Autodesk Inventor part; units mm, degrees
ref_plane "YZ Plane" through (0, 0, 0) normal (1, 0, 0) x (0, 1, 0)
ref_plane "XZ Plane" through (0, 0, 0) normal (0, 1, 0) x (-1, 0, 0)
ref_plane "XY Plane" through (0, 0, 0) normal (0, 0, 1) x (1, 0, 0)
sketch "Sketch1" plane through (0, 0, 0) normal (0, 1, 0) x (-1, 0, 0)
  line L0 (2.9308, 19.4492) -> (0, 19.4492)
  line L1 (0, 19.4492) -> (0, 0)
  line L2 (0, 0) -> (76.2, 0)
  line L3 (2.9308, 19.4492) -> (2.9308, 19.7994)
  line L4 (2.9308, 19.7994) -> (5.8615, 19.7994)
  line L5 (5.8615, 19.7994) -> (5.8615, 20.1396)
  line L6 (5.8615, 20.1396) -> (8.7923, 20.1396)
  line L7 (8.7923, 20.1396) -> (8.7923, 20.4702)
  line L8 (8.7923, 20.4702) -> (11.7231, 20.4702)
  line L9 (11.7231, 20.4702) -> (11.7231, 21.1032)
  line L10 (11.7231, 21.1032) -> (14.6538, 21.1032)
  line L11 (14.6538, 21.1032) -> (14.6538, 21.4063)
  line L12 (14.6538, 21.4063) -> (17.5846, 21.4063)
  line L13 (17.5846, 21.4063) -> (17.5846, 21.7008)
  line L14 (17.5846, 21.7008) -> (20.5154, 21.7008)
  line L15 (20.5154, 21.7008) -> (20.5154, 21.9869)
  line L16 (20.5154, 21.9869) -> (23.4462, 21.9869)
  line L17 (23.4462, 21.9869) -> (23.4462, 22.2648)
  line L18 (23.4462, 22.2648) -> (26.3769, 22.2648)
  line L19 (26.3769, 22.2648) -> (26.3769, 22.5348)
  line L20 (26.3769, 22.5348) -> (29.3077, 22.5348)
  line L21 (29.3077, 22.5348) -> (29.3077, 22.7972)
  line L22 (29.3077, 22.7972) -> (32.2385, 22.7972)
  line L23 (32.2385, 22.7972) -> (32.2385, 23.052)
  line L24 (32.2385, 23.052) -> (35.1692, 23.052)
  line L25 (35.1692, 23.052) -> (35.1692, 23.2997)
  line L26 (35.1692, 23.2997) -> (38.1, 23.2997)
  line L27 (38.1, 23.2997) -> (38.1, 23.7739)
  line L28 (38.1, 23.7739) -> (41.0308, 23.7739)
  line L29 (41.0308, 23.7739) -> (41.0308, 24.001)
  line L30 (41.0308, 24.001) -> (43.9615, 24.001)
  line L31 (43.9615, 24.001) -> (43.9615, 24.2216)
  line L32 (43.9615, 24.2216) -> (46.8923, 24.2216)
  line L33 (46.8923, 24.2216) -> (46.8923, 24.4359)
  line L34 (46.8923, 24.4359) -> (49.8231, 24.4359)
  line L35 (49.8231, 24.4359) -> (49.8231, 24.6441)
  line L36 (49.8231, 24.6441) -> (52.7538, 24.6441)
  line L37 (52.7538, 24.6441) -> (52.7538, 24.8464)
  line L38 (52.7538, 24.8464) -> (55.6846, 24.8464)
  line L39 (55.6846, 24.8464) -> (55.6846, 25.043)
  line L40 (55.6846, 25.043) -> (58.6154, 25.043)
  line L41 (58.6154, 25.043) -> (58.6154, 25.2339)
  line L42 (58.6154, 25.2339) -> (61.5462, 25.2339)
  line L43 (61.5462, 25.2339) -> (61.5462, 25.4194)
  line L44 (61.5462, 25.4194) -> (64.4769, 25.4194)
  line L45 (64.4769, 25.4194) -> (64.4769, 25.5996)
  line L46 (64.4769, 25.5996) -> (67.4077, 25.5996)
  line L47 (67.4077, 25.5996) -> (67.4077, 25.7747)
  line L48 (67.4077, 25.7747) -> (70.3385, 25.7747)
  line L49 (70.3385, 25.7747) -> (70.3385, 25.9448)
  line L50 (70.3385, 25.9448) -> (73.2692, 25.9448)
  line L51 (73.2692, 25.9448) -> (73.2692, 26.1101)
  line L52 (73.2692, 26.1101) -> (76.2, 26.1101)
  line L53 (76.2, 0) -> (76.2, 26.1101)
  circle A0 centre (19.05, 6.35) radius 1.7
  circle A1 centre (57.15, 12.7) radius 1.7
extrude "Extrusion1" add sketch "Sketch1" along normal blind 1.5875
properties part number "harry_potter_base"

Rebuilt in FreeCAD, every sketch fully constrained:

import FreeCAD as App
import Part
import Sketcher
Q = App.Units.Quantity

doc = App.newDocument("Part")
params = doc.addObject("Spreadsheet::Sheet", "Params")
for row, (alias, value) in enumerate([
    ("sketch1_width", "3 in"),
    ("pad1_length", "0.0625 in"),
], start=1):
    params.set(f"A{row}", alias)
    params.set(f"B{row}", "=" + value)
    params.setAlias(f"B{row}", alias)

body = doc.addObject("PartDesign::Body", "Body")

sketch1 = doc.addObject("Sketcher::SketchObject", "Sketch")
body.addObject(sketch1)
sketch1.AttachmentSupport = (doc.XZ_Plane, [""])
sketch1.MapMode = "FlatFace"
sketch1.addGeometry(Part.LineSegment(App.Vector(-2.9308, 19.7994, 0), App.Vector(-2.9308, 19.4492, 0)), False)
sketch1.addGeometry(Part.LineSegment(App.Vector(-2.9308, 19.4492, 0), App.Vector(0, 19.4492, 0)), False)
sketch1.addGeometry(Part.LineSegment(App.Vector(0, 19.4492, 0), App.Vector(0, 0, 0)), False)
sketch1.addGeometry(Part.LineSegment(App.Vector(0, 0, 0), App.Vector(-76.2, 0, 0)), False)
sketch1.addGeometry(Part.LineSegment(App.Vector(-76.2, 0, 0), App.Vector(-76.2, 26.1101, 0)), False)
sketch1.addGeometry(Part.LineSegment(App.Vector(-76.2, 26.1101, 0), App.Vector(-73.2692, 26.1101, 0)), False)
sketch1.addGeometry(Part.LineSegment(App.Vector(-73.2692, 26.1101, 0), App.Vector(-73.2692, 25.9448, 0)), False)
sketch1.addGeometry(Part.LineSegment(App.Vector(-73.2692, 25.9448, 0), App.Vector(-70.3385, 25.9448, 0)), False)
sketch1.addGeometry(Part.LineSegment(App.Vector(-70.3385, 25.9448, 0), App.Vector(-70.3385, 25.7747, 0)), False)
sketch1.addGeometry(Part.LineSegment(App.Vector(-70.3385, 25.7747, 0), App.Vector(-67.4077, 25.7747, 0)), False)
sketch1.addGeometry(Part.LineSegment(App.Vector(-67.4077, 25.7747, 0), App.Vector(-67.4077, 25.5996, 0)), False)
sketch1.addGeometry(Part.LineSegment(App.Vector(-67.4077, 25.5996, 0), App.Vector(-64.4769, 25.5996, 0)), False)
sketch1.addGeometry(Part.LineSegment(App.Vector(-64.4769, 25.5996, 0), App.Vector(-64.4769, 25.4194, 0)), False)
sketch1.addGeometry(Part.LineSegment(App.Vector(-64.4769, 25.4194, 0), App.Vector(-61.5462, 25.4194, 0)), False)
sketch1.addGeometry(Part.LineSegment(App.Vector(-61.5462, 25.4194, 0), App.Vector(-61.5462, 25.2339, 0)), False)
sketch1.addGeometry(Part.LineSegment(App.Vector(-61.5462, 25.2339, 0), App.Vector(-58.6154, 25.2339, 0)), False)
sketch1.addGeometry(Part.LineSegment(App.Vector(-58.6154, 25.2339, 0), App.Vector(-58.6154, 25.043, 0)), False)
sketch1.addGeometry(Part.LineSegment(App.Vector(-58.6154, 25.043, 0), App.Vector(-55.6846, 25.043, 0)), False)
sketch1.addGeometry(Part.LineSegment(App.Vector(-55.6846, 25.043, 0), App.Vector(-55.6846, 24.8464, 0)), False)
sketch1.addGeometry(Part.LineSegment(App.Vector(-55.6846, 24.8464, 0), App.Vector(-52.7538, 24.8464, 0)), False)
sketch1.addGeometry(Part.LineSegment(App.Vector(-52.7538, 24.8464, 0), App.Vector(-52.7538, 24.6441, 0)), False)
sketch1.addGeometry(Part.LineSegment(App.Vector(-52.7538, 24.6441, 0), App.Vector(-49.8231, 24.6441, 0)), False)
sketch1.addGeometry(Part.LineSegment(App.Vector(-49.8231, 24.6441, 0), App.Vector(-49.8231, 24.4359, 0)), False)
sketch1.addGeometry(Part.LineSegment(App.Vector(-49.8231, 24.4359, 0), App.Vector(-46.8923, 24.4359, 0)), False)
sketch1.addGeometry(Part.LineSegment(App.Vector(-46.8923, 24.4359, 0), App.Vector(-46.8923, 24.2216, 0)), False)
sketch1.addGeometry(Part.LineSegment(App.Vector(-46.8923, 24.2216, 0), App.Vector(-43.9615, 24.2216, 0)), False)
sketch1.addGeometry(Part.LineSegment(App.Vector(-43.9615, 24.2216, 0), App.Vector(-43.9615, 24.001, 0)), False)
sketch1.addGeometry(Part.LineSegment(App.Vector(-43.9615, 24.001, 0), App.Vector(-41.0308, 24.001, 0)), False)
sketch1.addGeometry(Part.LineSegment(App.Vector(-41.0308, 24.001, 0), App.Vector(-41.0308, 23.7739, 0)), False)
sketch1.addGeometry(Part.LineSegment(App.Vector(-41.0308, 23.7739, 0), App.Vector(-38.1, 23.7739, 0)), False)
sketch1.addGeometry(Part.LineSegment(App.Vector(-38.1, 23.7739, 0), App.Vector(-38.1, 23.2997, 0)), False)
sketch1.addGeometry(Part.LineSegment(App.Vector(-38.1, 23.2997, 0), App.Vector(-35.1692, 23.2997, 0)), False)
sketch1.addGeometry(Part.LineSegment(App.Vector(-35.1692, 23.2997, 0), App.Vector(-35.1692, 23.052, 0)), False)
sketch1.addGeometry(Part.LineSegment(App.Vector(-35.1692, 23.052, 0), App.Vector(-32.2385, 23.052, 0)), False)
sketch1.addGeometry(Part.LineSegment(App.Vector(-32.2385, 23.052, 0), App.Vector(-32.2385, 22.7972, 0)), False)
sketch1.addGeometry(Part.LineSegment(App.Vector(-32.2385, 22.7972, 0), App.Vector(-29.3077, 22.7972, 0)), False)
sketch1.addGeometry(Part.LineSegment(App.Vector(-29.3077, 22.7972, 0), App.Vector(-29.3077, 22.5348, 0)), False)
sketch1.addGeometry(Part.LineSegment(App.Vector(-29.3077, 22.5348, 0), App.Vector(-26.3769, 22.5348, 0)), False)
sketch1.addGeometry(Part.LineSegment(App.Vector(-26.3769, 22.5348, 0), App.Vector(-26.3769, 22.2648, 0)), False)
sketch1.addGeometry(Part.LineSegment(App.Vector(-26.3769, 22.2648, 0), App.Vector(-23.4462, 22.2648, 0)), False)
sketch1.addGeometry(Part.LineSegment(App.Vector(-23.4462, 22.2648, 0), App.Vector(-23.4462, 21.9869, 0)), False)
sketch1.addGeometry(Part.LineSegment(App.Vector(-23.4462, 21.9869, 0), App.Vector(-20.5154, 21.9869, 0)), False)
sketch1.addGeometry(Part.LineSegment(App.Vector(-20.5154, 21.9869, 0), App.Vector(-20.5154, 21.7008, 0)), False)
sketch1.addGeometry(Part.LineSegment(App.Vector(-20.5154, 21.7008, 0), App.Vector(-17.5846, 21.7008, 0)), False)
sketch1.addGeometry(Part.LineSegment(App.Vector(-17.5846, 21.7008, 0), App.Vector(-17.5846, 21.4063, 0)), False)
sketch1.addGeometry(Part.LineSegment(App.Vector(-17.5846, 21.4063, 0), App.Vector(-14.6538, 21.4063, 0)), False)
sketch1.addGeometry(Part.LineSegment(App.Vector(-14.6538, 21.4063, 0), App.Vector(-14.6538, 21.1032, 0)), False)
sketch1.addGeometry(Part.LineSegment(App.Vector(-14.6538, 21.1032, 0), App.Vector(-11.7231, 21.1032, 0)), False)
sketch1.addGeometry(Part.LineSegment(App.Vector(-11.7231, 21.1032, 0), App.Vector(-11.7231, 20.4702, 0)), False)
sketch1.addGeometry(Part.LineSegment(App.Vector(-11.7231, 20.4702, 0), App.Vector(-8.7923, 20.4702, 0)), False)
sketch1.addGeometry(Part.LineSegment(App.Vector(-8.7923, 20.4702, 0), App.Vector(-8.7923, 20.1396, 0)), False)
sketch1.addGeometry(Part.LineSegment(App.Vector(-8.7923, 20.1396, 0), App.Vector(-5.8615, 20.1396, 0)), False)
sketch1.addGeometry(Part.LineSegment(App.Vector(-5.8615, 20.1396, 0), App.Vector(-5.8615, 19.7994, 0)), False)
sketch1.addGeometry(Part.LineSegment(App.Vector(-5.8615, 19.7994, 0), App.Vector(-2.9308, 19.7994, 0)), False)
sketch1.addGeometry(Part.Circle(App.Vector(-19.05, 6.35, 0), App.Vector(0, 0, 1), 1.7), False)
sketch1.addGeometry(Part.Circle(App.Vector(-57.15, 12.7, 0), App.Vector(0, 0, 1), 1.7), False)
sketch1.addConstraint(Sketcher.Constraint("Coincident", 0, 2, 1, 1))
sketch1.addConstraint(Sketcher.Constraint("Coincident", 1, 2, 2, 1))
sketch1.addConstraint(Sketcher.Constraint("Coincident", 2, 2, 3, 1))
sketch1.addConstraint(Sketcher.Constraint("Coincident", 3, 2, 4, 1))
sketch1.addConstraint(Sketcher.Constraint("Coincident", 4, 2, 5, 1))
sketch1.addConstraint(Sketcher.Constraint("Coincident", 5, 2, 6, 1))
sketch1.addConstraint(Sketcher.Constraint("Coincident", 6, 2, 7, 1))
sketch1.addConstraint(Sketcher.Constraint("Coincident", 7, 2, 8, 1))
sketch1.addConstraint(Sketcher.Constraint("Coincident", 8, 2, 9, 1))
sketch1.addConstraint(Sketcher.Constraint("Coincident", 9, 2, 10, 1))
sketch1.addConstraint(Sketcher.Constraint("Coincident", 10, 2, 11, 1))
sketch1.addConstraint(Sketcher.Constraint("Coincident", 11, 2, 12, 1))
sketch1.addConstraint(Sketcher.Constraint("Coincident", 12, 2, 13, 1))
sketch1.addConstraint(Sketcher.Constraint("Coincident", 13, 2, 14, 1))
sketch1.addConstraint(Sketcher.Constraint("Coincident", 14, 2, 15, 1))
sketch1.addConstraint(Sketcher.Constraint("Coincident", 15, 2, 16, 1))
sketch1.addConstraint(Sketcher.Constraint("Coincident", 16, 2, 17, 1))
sketch1.addConstraint(Sketcher.Constraint("Coincident", 17, 2, 18, 1))
sketch1.addConstraint(Sketcher.Constraint("Coincident", 18, 2, 19, 1))
sketch1.addConstraint(Sketcher.Constraint("Coincident", 19, 2, 20, 1))
sketch1.addConstraint(Sketcher.Constraint("Coincident", 20, 2, 21, 1))
sketch1.addConstraint(Sketcher.Constraint("Coincident", 21, 2, 22, 1))
sketch1.addConstraint(Sketcher.Constraint("Coincident", 22, 2, 23, 1))
sketch1.addConstraint(Sketcher.Constraint("Coincident", 23, 2, 24, 1))
sketch1.addConstraint(Sketcher.Constraint("Coincident", 24, 2, 25, 1))
sketch1.addConstraint(Sketcher.Constraint("Coincident", 25, 2, 26, 1))
sketch1.addConstraint(Sketcher.Constraint("Coincident", 26, 2, 27, 1))
sketch1.addConstraint(Sketcher.Constraint("Coincident", 27, 2, 28, 1))
sketch1.addConstraint(Sketcher.Constraint("Coincident", 28, 2, 29, 1))
sketch1.addConstraint(Sketcher.Constraint("Coincident", 29, 2, 30, 1))
sketch1.addConstraint(Sketcher.Constraint("Coincident", 30, 2, 31, 1))
sketch1.addConstraint(Sketcher.Constraint("Coincident", 31, 2, 32, 1))
sketch1.addConstraint(Sketcher.Constraint("Coincident", 32, 2, 33, 1))
sketch1.addConstraint(Sketcher.Constraint("Coincident", 33, 2, 34, 1))
sketch1.addConstraint(Sketcher.Constraint("Coincident", 34, 2, 35, 1))
sketch1.addConstraint(Sketcher.Constraint("Coincident", 35, 2, 36, 1))
sketch1.addConstraint(Sketcher.Constraint("Coincident", 36, 2, 37, 1))
sketch1.addConstraint(Sketcher.Constraint("Coincident", 37, 2, 38, 1))
sketch1.addConstraint(Sketcher.Constraint("Coincident", 38, 2, 39, 1))
sketch1.addConstraint(Sketcher.Constraint("Coincident", 39, 2, 40, 1))
sketch1.addConstraint(Sketcher.Constraint("Coincident", 40, 2, 41, 1))
sketch1.addConstraint(Sketcher.Constraint("Coincident", 41, 2, 42, 1))
sketch1.addConstraint(Sketcher.Constraint("Coincident", 42, 2, 43, 1))
sketch1.addConstraint(Sketcher.Constraint("Coincident", 43, 2, 44, 1))
sketch1.addConstraint(Sketcher.Constraint("Coincident", 44, 2, 45, 1))
sketch1.addConstraint(Sketcher.Constraint("Coincident", 45, 2, 46, 1))
sketch1.addConstraint(Sketcher.Constraint("Coincident", 46, 2, 47, 1))
sketch1.addConstraint(Sketcher.Constraint("Coincident", 47, 2, 48, 1))
sketch1.addConstraint(Sketcher.Constraint("Coincident", 48, 2, 49, 1))
sketch1.addConstraint(Sketcher.Constraint("Coincident", 49, 2, 50, 1))
sketch1.addConstraint(Sketcher.Constraint("Coincident", 50, 2, 51, 1))
sketch1.addConstraint(Sketcher.Constraint("Coincident", 51, 2, 52, 1))
sketch1.addConstraint(Sketcher.Constraint("Coincident", 52, 2, 53, 1))
sketch1.addConstraint(Sketcher.Constraint("Coincident", 53, 2, 0, 1))
sketch1.addConstraint(Sketcher.Constraint("Vertical", 0))
sketch1.addConstraint(Sketcher.Constraint("Horizontal", 1))
sketch1.addConstraint(Sketcher.Constraint("Vertical", 2))
sketch1.addConstraint(Sketcher.Constraint("Horizontal", 3))
sketch1.addConstraint(Sketcher.Constraint("Vertical", 4))
sketch1.addConstraint(Sketcher.Constraint("Horizontal", 5))
sketch1.addConstraint(Sketcher.Constraint("Vertical", 6))
sketch1.addConstraint(Sketcher.Constraint("Horizontal", 7))
sketch1.addConstraint(Sketcher.Constraint("Vertical", 8))
sketch1.addConstraint(Sketcher.Constraint("Horizontal", 9))
sketch1.addConstraint(Sketcher.Constraint("Vertical", 10))
sketch1.addConstraint(Sketcher.Constraint("Horizontal", 11))
sketch1.addConstraint(Sketcher.Constraint("Vertical", 12))
sketch1.addConstraint(Sketcher.Constraint("Horizontal", 13))
sketch1.addConstraint(Sketcher.Constraint("Vertical", 14))
sketch1.addConstraint(Sketcher.Constraint("Horizontal", 15))
sketch1.addConstraint(Sketcher.Constraint("Vertical", 16))
sketch1.addConstraint(Sketcher.Constraint("Horizontal", 17))
sketch1.addConstraint(Sketcher.Constraint("Vertical", 18))
sketch1.addConstraint(Sketcher.Constraint("Horizontal", 19))
sketch1.addConstraint(Sketcher.Constraint("Vertical", 20))
sketch1.addConstraint(Sketcher.Constraint("Horizontal", 21))
sketch1.addConstraint(Sketcher.Constraint("Vertical", 22))
sketch1.addConstraint(Sketcher.Constraint("Horizontal", 23))
sketch1.addConstraint(Sketcher.Constraint("Vertical", 24))
sketch1.addConstraint(Sketcher.Constraint("Horizontal", 25))
sketch1.addConstraint(Sketcher.Constraint("Vertical", 26))
sketch1.addConstraint(Sketcher.Constraint("Horizontal", 27))
sketch1.addConstraint(Sketcher.Constraint("Vertical", 28))
sketch1.addConstraint(Sketcher.Constraint("Horizontal", 29))
sketch1.addConstraint(Sketcher.Constraint("Vertical", 30))
sketch1.addConstraint(Sketcher.Constraint("Horizontal", 31))
sketch1.addConstraint(Sketcher.Constraint("Vertical", 32))
sketch1.addConstraint(Sketcher.Constraint("Horizontal", 33))
sketch1.addConstraint(Sketcher.Constraint("Vertical", 34))
sketch1.addConstraint(Sketcher.Constraint("Horizontal", 35))
sketch1.addConstraint(Sketcher.Constraint("Vertical", 36))
sketch1.addConstraint(Sketcher.Constraint("Horizontal", 37))
sketch1.addConstraint(Sketcher.Constraint("Vertical", 38))
sketch1.addConstraint(Sketcher.Constraint("Horizontal", 39))
sketch1.addConstraint(Sketcher.Constraint("Vertical", 40))
sketch1.addConstraint(Sketcher.Constraint("Horizontal", 41))
sketch1.addConstraint(Sketcher.Constraint("Vertical", 42))
sketch1.addConstraint(Sketcher.Constraint("Horizontal", 43))
sketch1.addConstraint(Sketcher.Constraint("Vertical", 44))
sketch1.addConstraint(Sketcher.Constraint("Horizontal", 45))
sketch1.addConstraint(Sketcher.Constraint("Vertical", 46))
sketch1.addConstraint(Sketcher.Constraint("Horizontal", 47))
sketch1.addConstraint(Sketcher.Constraint("Vertical", 48))
sketch1.addConstraint(Sketcher.Constraint("Horizontal", 49))
sketch1.addConstraint(Sketcher.Constraint("Vertical", 50))
sketch1.addConstraint(Sketcher.Constraint("Horizontal", 51))
sketch1.addConstraint(Sketcher.Constraint("Vertical", 52))
sketch1.addConstraint(Sketcher.Constraint("Horizontal", 53))
sketch1.addConstraint(Sketcher.Constraint("Coincident", 2, 2, -1, 1))
sketch1.addConstraint(Sketcher.Constraint("Equal", 54, 55))
sketch1.addConstraint(Sketcher.Constraint("Equal", 1, 5))
sketch1.addConstraint(Sketcher.Constraint("Equal", 5, 7))
sketch1.addConstraint(Sketcher.Constraint("Equal", 7, 9))
sketch1.addConstraint(Sketcher.Constraint("Equal", 9, 11))
sketch1.addConstraint(Sketcher.Constraint("Equal", 11, 13))
sketch1.addConstraint(Sketcher.Constraint("Equal", 13, 15))
sketch1.addConstraint(Sketcher.Constraint("Equal", 15, 17))
sketch1.addConstraint(Sketcher.Constraint("Equal", 17, 19))
sketch1.addConstraint(Sketcher.Constraint("Equal", 19, 21))
sketch1.addConstraint(Sketcher.Constraint("Equal", 21, 23))
sketch1.addConstraint(Sketcher.Constraint("Equal", 23, 25))
sketch1.addConstraint(Sketcher.Constraint("Equal", 25, 27))
sketch1.addConstraint(Sketcher.Constraint("Equal", 27, 29))
sketch1.addConstraint(Sketcher.Constraint("Equal", 29, 31))
sketch1.addConstraint(Sketcher.Constraint("Equal", 31, 33))
sketch1.addConstraint(Sketcher.Constraint("Equal", 33, 35))
sketch1.addConstraint(Sketcher.Constraint("Equal", 35, 37))
sketch1.addConstraint(Sketcher.Constraint("Equal", 37, 39))
sketch1.addConstraint(Sketcher.Constraint("Equal", 39, 41))
sketch1.addConstraint(Sketcher.Constraint("Equal", 41, 43))
sketch1.addConstraint(Sketcher.Constraint("Equal", 43, 45))
sketch1.addConstraint(Sketcher.Constraint("Equal", 45, 47))
sketch1.addConstraint(Sketcher.Constraint("Equal", 47, 49))
sketch1.addConstraint(Sketcher.Constraint("Equal", 49, 51))
sketch1.addConstraint(Sketcher.Constraint("Equal", 51, 53))
sketch1.addConstraint(Sketcher.Constraint("DistanceX", 3, 2, 3, 1, Q("3 in")))
sketch1.addConstraint(Sketcher.Constraint("DistanceY", -1, 1, 55, 3, Q("0.5 in")))
sketch1.addConstraint(Sketcher.Constraint("DistanceX", 55, 3, 54, 3, Q("1.5 in")))
sketch1.addConstraint(Sketcher.Constraint("Diameter", 54, 3.4))
sketch1.addConstraint(Sketcher.Constraint("DistanceX", 54, 3, -1, 1, Q("0.75 in")))
sketch1.addConstraint(Sketcher.Constraint("DistanceY", -1, 1, 54, 3, Q("0.25 in")))
sketch1.addConstraint(Sketcher.Constraint("DistanceY", 6, 2, 6, 1, Q("0.0065 in")))
sketch1.addConstraint(Sketcher.Constraint("DistanceY", 8, 2, 8, 1, Q("0.0067 in")))
sketch1.addConstraint(Sketcher.Constraint("DistanceY", 10, 2, 10, 1, Q("0.0069 in")))
sketch1.addConstraint(Sketcher.Constraint("DistanceY", 12, 2, 12, 1, Q("0.0071 in")))
sketch1.addConstraint(Sketcher.Constraint("DistanceY", 14, 2, 14, 1, Q("0.0073 in")))
sketch1.addConstraint(Sketcher.Constraint("DistanceY", 22, 2, 22, 1, Q("0.0082 in")))
sketch1.addConstraint(Sketcher.Constraint("DistanceY", 44, 2, 44, 1, Q("0.0116 in")))
sketch1.addConstraint(Sketcher.Constraint("DistanceY", 52, 2, 52, 1, Q("0.0134 in")))
sketch1.addConstraint(Sketcher.Constraint("DistanceY", 38, 2, 33, 2, Q("0.031 in")))
sketch1.addConstraint(Sketcher.Constraint("DistanceY", 0, 2, 0, 1, 0.3502))
sketch1.addConstraint(Sketcher.Constraint("DistanceY", 2, 2, 2, 1, 19.4492))
sketch1.addConstraint(Sketcher.Constraint("DistanceY", 4, 1, 4, 2, 26.11))
sketch1.addConstraint(Sketcher.Constraint("DistanceY", 16, 2, 16, 1, 0.191))
sketch1.addConstraint(Sketcher.Constraint("DistanceY", 18, 2, 18, 1, 0.1966))
sketch1.addConstraint(Sketcher.Constraint("DistanceY", 20, 2, 20, 1, 0.2023))
sketch1.addConstraint(Sketcher.Constraint("DistanceY", 24, 2, 24, 1, 0.2143))
sketch1.addConstraint(Sketcher.Constraint("DistanceY", 26, 2, 26, 1, 0.2206))
sketch1.addConstraint(Sketcher.Constraint("DistanceY", 28, 2, 28, 1, 0.227))
sketch1.addConstraint(Sketcher.Constraint("DistanceY", 30, 2, 30, 1, 0.4742))
sketch1.addConstraint(Sketcher.Constraint("DistanceY", 32, 2, 32, 1, 0.2477))
sketch1.addConstraint(Sketcher.Constraint("DistanceY", 34, 2, 34, 1, 0.2548))
sketch1.addConstraint(Sketcher.Constraint("DistanceY", 36, 2, 36, 1, 0.2624))
sketch1.addConstraint(Sketcher.Constraint("DistanceY", 40, 2, 40, 1, 0.278))
sketch1.addConstraint(Sketcher.Constraint("DistanceY", 42, 2, 42, 1, 0.286))
sketch1.addConstraint(Sketcher.Constraint("DistanceY", 46, 2, 46, 1, 0.303))
sketch1.addConstraint(Sketcher.Constraint("DistanceY", 48, 2, 48, 1, 0.633))
sketch1.setExpression("Constraints[135]", "Params.sketch1_width")
pad1 = doc.addObject("PartDesign::Pad", "Pad")
body.addObject(pad1)
pad1.Profile = sketch1
pad1.setExpression("Length", "Params.pad1_length")
pad1.Reversed = True

doc.recompute()
